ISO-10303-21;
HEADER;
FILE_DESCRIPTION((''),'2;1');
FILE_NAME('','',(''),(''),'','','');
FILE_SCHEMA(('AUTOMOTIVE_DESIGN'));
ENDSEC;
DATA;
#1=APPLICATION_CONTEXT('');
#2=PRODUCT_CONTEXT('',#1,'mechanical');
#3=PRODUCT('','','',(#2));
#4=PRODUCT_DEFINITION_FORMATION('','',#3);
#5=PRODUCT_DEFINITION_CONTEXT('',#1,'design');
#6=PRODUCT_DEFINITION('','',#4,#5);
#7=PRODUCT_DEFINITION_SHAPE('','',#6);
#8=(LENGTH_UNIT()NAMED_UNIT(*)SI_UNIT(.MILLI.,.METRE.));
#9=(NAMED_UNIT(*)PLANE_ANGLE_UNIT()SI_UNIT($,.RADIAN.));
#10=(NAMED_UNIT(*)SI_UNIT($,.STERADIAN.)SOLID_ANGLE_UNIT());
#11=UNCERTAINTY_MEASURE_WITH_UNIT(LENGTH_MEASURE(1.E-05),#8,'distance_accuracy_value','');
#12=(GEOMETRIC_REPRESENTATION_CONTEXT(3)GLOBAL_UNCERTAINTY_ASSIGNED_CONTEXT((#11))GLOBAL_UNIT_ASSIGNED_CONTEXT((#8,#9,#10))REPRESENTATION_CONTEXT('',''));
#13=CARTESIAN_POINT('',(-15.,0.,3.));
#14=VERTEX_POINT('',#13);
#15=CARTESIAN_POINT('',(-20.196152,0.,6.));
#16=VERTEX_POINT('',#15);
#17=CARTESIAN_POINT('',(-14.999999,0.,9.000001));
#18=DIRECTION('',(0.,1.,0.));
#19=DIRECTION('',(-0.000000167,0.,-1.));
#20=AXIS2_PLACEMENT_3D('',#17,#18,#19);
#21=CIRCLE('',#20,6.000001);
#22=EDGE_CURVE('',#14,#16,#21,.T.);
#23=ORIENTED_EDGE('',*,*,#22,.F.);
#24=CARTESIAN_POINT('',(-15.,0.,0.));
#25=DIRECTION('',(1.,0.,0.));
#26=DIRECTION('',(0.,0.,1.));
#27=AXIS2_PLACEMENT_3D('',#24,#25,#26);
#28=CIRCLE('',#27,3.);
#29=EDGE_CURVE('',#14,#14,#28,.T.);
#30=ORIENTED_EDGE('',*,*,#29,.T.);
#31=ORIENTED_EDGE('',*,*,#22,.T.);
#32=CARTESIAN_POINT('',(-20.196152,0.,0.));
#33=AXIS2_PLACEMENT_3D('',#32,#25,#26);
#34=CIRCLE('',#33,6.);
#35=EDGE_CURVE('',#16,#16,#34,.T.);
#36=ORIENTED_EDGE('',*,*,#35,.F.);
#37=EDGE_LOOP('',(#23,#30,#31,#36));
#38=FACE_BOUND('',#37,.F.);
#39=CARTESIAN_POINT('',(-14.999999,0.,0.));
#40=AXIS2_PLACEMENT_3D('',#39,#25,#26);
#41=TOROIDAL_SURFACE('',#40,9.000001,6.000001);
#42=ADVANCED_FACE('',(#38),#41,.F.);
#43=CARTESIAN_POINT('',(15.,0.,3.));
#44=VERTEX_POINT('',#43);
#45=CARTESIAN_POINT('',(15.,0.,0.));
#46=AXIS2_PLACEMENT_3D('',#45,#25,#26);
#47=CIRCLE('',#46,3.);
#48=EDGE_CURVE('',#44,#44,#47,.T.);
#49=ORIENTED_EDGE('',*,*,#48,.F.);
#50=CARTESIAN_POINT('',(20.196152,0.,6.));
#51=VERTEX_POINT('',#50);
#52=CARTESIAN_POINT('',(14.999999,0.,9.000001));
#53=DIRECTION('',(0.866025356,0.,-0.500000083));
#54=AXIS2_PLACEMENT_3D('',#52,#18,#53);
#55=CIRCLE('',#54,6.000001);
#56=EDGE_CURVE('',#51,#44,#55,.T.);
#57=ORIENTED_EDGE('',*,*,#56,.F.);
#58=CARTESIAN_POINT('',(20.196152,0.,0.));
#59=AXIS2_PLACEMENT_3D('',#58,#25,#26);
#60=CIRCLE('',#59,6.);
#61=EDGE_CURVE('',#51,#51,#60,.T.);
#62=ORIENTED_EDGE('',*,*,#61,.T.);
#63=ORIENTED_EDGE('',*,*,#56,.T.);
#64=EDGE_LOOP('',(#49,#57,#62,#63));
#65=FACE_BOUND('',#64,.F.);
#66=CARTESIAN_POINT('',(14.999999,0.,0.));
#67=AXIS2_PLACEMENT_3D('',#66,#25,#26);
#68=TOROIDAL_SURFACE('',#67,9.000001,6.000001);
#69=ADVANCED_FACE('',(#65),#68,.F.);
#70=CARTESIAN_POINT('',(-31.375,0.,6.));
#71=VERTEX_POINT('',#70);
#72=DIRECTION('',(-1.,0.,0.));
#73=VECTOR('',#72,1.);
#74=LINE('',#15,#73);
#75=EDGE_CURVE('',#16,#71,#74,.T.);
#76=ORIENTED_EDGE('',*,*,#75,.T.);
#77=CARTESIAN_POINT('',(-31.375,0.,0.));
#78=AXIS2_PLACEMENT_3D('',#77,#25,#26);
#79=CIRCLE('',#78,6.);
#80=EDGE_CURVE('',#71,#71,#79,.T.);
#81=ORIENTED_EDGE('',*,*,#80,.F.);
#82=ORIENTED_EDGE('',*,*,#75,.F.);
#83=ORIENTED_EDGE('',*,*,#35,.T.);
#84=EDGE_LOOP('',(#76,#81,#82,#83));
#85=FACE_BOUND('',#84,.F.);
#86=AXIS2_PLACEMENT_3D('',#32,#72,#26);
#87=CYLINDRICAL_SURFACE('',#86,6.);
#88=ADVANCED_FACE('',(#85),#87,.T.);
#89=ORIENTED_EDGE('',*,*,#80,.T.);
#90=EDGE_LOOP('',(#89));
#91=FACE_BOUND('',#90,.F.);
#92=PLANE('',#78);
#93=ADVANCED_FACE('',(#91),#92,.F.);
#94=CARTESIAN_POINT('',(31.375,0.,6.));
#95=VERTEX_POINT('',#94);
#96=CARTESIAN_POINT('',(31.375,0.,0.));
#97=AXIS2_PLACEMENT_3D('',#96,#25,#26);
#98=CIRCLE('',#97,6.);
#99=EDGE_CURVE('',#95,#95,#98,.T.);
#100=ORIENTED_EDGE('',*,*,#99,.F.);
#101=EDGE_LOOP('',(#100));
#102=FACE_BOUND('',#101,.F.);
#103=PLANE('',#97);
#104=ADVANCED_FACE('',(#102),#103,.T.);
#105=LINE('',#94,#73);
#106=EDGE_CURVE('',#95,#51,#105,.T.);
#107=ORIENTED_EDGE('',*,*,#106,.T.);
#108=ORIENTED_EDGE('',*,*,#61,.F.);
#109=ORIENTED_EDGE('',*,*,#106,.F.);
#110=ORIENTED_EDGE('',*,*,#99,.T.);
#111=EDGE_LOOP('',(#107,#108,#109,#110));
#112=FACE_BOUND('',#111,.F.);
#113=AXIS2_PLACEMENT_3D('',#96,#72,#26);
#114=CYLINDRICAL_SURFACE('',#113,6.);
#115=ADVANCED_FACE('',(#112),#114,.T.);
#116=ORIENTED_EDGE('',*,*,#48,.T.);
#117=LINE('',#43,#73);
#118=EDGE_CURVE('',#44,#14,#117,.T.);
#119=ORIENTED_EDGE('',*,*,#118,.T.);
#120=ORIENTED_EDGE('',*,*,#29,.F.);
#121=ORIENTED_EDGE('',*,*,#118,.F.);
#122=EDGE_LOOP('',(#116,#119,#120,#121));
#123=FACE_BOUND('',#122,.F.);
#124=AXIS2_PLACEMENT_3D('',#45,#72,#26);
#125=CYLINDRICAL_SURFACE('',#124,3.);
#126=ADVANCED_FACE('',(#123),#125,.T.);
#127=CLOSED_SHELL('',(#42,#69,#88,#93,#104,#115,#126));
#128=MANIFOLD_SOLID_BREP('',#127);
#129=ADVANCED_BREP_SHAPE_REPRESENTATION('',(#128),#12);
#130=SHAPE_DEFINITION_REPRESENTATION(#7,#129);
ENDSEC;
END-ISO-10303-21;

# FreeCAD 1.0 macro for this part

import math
import FreeCAD as App
import Part
import Sketcher
Q = App.Units.Quantity

doc = App.newDocument("Part")
params = doc.addObject("Spreadsheet::Sheet", "Params")
for row, (alias, value) in enumerate([
    ("sketch1_radius", "6.000001 mm"),
    ("sketch1_width", "30 mm"),
    ("sketch1_height", "6 mm"),
    ("sketch1_width2", "62.75 mm"),
    ("revolution_angle", "360 deg"),
], start=1):
    params.set(f"A{row}", alias)
    params.set(f"B{row}", "=" + value)
    params.setAlias(f"B{row}", alias)

body = doc.addObject("PartDesign::Body", "Body")

# Sketch on XZ plane
sketch1 = body.newObject("Sketcher::SketchObject", "Sketch")
sketch1.AttachmentSupport = (doc.getObject("XZ_Plane"), [""])
sketch1.MapMode = "FlatFace"
sketch1.addGeometry(Part.LineSegment(App.Vector(15, 3, 0), App.Vector(-15, 3, 0)), False)
sketch1.addGeometry(Part.ArcOfCircle(Part.Circle(App.Vector(-14.999999, 9.000001, 0), App.Vector(0, 0, 1), 6.000001), math.radians(-149.999994), math.radians(-90.00001)), False)
sketch1.addGeometry(Part.LineSegment(App.Vector(-20.196152, 6, 0), App.Vector(-31.375, 6, 0)), False)
sketch1.addGeometry(Part.LineSegment(App.Vector(-31.375, 6, 0), App.Vector(-31.375, 0, 0)), False)
sketch1.addGeometry(Part.LineSegment(App.Vector(-31.375, 0, 0), App.Vector(31.375, 0, 0)), False)
sketch1.addGeometry(Part.LineSegment(App.Vector(31.375, 0, 0), App.Vector(31.375, 6, 0)), False)
sketch1.addGeometry(Part.LineSegment(App.Vector(31.375, 6, 0), App.Vector(20.196152, 6, 0)), False)
sketch1.addGeometry(Part.ArcOfCircle(Part.Circle(App.Vector(14.999999, 9.000001, 0), App.Vector(0, 0, 1), 6.000001), math.radians(-89.99999), math.radians(-30.000006)), False)
sketch1.addConstraint(Sketcher.Constraint("Tangent", 0, 2, 1, 2))
sketch1.addConstraint(Sketcher.Constraint("Coincident", 1, 1, 2, 1))
sketch1.addConstraint(Sketcher.Constraint("Coincident", 2, 2, 3, 1))
sketch1.addConstraint(Sketcher.Constraint("Coincident", 3, 2, 4, 1))
sketch1.addConstraint(Sketcher.Constraint("Coincident", 4, 2, 5, 1))
sketch1.addConstraint(Sketcher.Constraint("Coincident", 5, 2, 6, 1))
sketch1.addConstraint(Sketcher.Constraint("Coincident", 6, 2, 7, 2))
sketch1.addConstraint(Sketcher.Constraint("Tangent", 7, 1, 0, 1))
sketch1.addConstraint(Sketcher.Constraint("Horizontal", 0))
sketch1.addConstraint(Sketcher.Constraint("Horizontal", 2))
sketch1.addConstraint(Sketcher.Constraint("Vertical", 3))
sketch1.addConstraint(Sketcher.Constraint("Horizontal", 4))
sketch1.addConstraint(Sketcher.Constraint("Vertical", 5))
sketch1.addConstraint(Sketcher.Constraint("Horizontal", 6))
sketch1.addConstraint(Sketcher.Constraint("Equal", 1, 7))
sketch1.addConstraint(Sketcher.Constraint("Symmetric", 3, 2, 4, 2, -1, 1))
sketch1.addConstraint(Sketcher.Constraint("Symmetric", 1, 1, 6, 2, -2))
sketch1.addConstraint(Sketcher.Constraint("Radius", 1, Q("6.000001 mm")))
sketch1.addConstraint(Sketcher.Constraint("DistanceX", 0, 2, 0, 1, Q("30 mm")))
sketch1.addConstraint(Sketcher.Constraint("DistanceY", 3, 2, 3, 1, Q("6 mm")))
sketch1.addConstraint(Sketcher.Constraint("DistanceY", -1, 1, 1, 3, Q("9.000001 mm")))
sketch1.addConstraint(Sketcher.Constraint("DistanceX", 4, 1, 4, 2, Q("62.75 mm")))
sketch1.setExpression("Constraints[17]", "Params.sketch1_radius")
sketch1.setExpression("Constraints[18]", "Params.sketch1_width")
sketch1.setExpression("Constraints[19]", "Params.sketch1_height")
sketch1.setExpression("Constraints[21]", "Params.sketch1_width2")
revolution = body.newObject("PartDesign::Revolution", "Revolution")
revolution.Profile = sketch1
revolution.ReferenceAxis = (sketch1, ["H_Axis"])
revolution.setExpression("Angle", "Params.revolution_angle")

doc.recompute()
